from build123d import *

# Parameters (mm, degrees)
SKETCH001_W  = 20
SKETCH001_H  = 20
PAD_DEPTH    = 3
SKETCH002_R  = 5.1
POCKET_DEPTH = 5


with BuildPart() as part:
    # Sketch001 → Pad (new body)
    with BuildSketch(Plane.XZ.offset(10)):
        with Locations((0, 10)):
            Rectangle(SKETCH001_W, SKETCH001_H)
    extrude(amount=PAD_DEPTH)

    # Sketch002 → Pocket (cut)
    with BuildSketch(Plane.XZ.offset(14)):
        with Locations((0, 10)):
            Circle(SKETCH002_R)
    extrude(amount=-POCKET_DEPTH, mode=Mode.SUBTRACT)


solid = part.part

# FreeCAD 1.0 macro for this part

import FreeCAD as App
import Part
import Sketcher
from FreeCAD import Vector


def add_polygon(sketch, points):
    """Adds a closed chain of lines whose ends are joined by coincident constraints."""
    first, n = sketch.GeometryCount, len(points)
    for a, b in zip(points, points[1:] + points[:1]):
        sketch.addGeometry(Part.LineSegment(App.Vector(*a, 0), App.Vector(*b, 0)), False)
    for i in range(n):
        sketch.addConstraint(Sketcher.Constraint("Coincident", first + i, 2, first + (i + 1) % n, 1))

doc = App.newDocument("Part")
params = doc.addObject("Spreadsheet::Sheet", "Params")
for row, (alias, value) in enumerate([
    ("sketch1_width", "20 mm"),
    ("pad1_length", "3 mm"),
    ("sketch2_diameter", "10.2 mm"),
    ("pocket1_length", "5 mm"),
], start=1):
    params.set(f"A{row}", alias)
    params.set(f"B{row}", "=" + value)
    params.setAlias(f"B{row}", alias)

body = doc.addObject("PartDesign::Body", "Body")

# Sketch on XZ plane
sketch1 = body.newObject("Sketcher::SketchObject", "Sketch")
sketch1.AttachmentSupport = (doc.getObject("XZ_Plane"), [""])
sketch1.MapMode = "FlatFace"
sketch1.AttachmentOffset = App.Placement(Vector(0, 0, 10), App.Rotation())
add_polygon(sketch1, [(-10, 20), (-10, 0), (10, 0), (10, 20)])  # lines 0-3
sketch1.addConstraint(Sketcher.Constraint("Vertical", 0))
sketch1.addConstraint(Sketcher.Constraint("Horizontal", 1))
sketch1.addConstraint(Sketcher.Constraint("Vertical", 2))
sketch1.addConstraint(Sketcher.Constraint("Horizontal", 3))
sketch1.addConstraint(Sketcher.Constraint("Symmetric", 0, 2, 1, 2, -1, 1))
sketch1.addConstraint(Sketcher.Constraint("Equal", 3, 0))
sketch1.addConstraint(Sketcher.Constraint("DistanceX", 1, 1, 1, 2, 20.0))
sketch1.setExpression("Constraints[10]", "Params.sketch1_width")
pad1 = body.newObject("PartDesign::Pad", "Pad")
pad1.Profile = sketch1
pad1.setExpression("Length", "Params.pad1_length")

# Sketch on XZ plane
sketch2 = body.newObject("Sketcher::SketchObject", "Sketch001")
sketch2.AttachmentSupport = (doc.getObject("XZ_Plane"), [""])
sketch2.MapMode = "FlatFace"
sketch2.AttachmentOffset = App.Placement(Vector(0, 0, 14), App.Rotation())
sketch2.addGeometry(Part.Circle(Vector(0, 10, 0), Vector(0, 0, 1), 5.1), False)
sketch2.addConstraint(Sketcher.Constraint("PointOnObject", 0, 3, -2))
sketch2.addConstraint(Sketcher.Constraint("Diameter", 0, 10.2))
sketch2.addConstraint(Sketcher.Constraint("DistanceY", -1, 1, 0, 3, 10.0))
sketch2.setExpression("Constraints[1]", "Params.sketch2_diameter")
pocket1 = body.newObject("PartDesign::Pocket", "Pocket")
pocket1.Profile = sketch2
pocket1.setExpression("Length", "Params.pocket1_length")

doc.recompute()
